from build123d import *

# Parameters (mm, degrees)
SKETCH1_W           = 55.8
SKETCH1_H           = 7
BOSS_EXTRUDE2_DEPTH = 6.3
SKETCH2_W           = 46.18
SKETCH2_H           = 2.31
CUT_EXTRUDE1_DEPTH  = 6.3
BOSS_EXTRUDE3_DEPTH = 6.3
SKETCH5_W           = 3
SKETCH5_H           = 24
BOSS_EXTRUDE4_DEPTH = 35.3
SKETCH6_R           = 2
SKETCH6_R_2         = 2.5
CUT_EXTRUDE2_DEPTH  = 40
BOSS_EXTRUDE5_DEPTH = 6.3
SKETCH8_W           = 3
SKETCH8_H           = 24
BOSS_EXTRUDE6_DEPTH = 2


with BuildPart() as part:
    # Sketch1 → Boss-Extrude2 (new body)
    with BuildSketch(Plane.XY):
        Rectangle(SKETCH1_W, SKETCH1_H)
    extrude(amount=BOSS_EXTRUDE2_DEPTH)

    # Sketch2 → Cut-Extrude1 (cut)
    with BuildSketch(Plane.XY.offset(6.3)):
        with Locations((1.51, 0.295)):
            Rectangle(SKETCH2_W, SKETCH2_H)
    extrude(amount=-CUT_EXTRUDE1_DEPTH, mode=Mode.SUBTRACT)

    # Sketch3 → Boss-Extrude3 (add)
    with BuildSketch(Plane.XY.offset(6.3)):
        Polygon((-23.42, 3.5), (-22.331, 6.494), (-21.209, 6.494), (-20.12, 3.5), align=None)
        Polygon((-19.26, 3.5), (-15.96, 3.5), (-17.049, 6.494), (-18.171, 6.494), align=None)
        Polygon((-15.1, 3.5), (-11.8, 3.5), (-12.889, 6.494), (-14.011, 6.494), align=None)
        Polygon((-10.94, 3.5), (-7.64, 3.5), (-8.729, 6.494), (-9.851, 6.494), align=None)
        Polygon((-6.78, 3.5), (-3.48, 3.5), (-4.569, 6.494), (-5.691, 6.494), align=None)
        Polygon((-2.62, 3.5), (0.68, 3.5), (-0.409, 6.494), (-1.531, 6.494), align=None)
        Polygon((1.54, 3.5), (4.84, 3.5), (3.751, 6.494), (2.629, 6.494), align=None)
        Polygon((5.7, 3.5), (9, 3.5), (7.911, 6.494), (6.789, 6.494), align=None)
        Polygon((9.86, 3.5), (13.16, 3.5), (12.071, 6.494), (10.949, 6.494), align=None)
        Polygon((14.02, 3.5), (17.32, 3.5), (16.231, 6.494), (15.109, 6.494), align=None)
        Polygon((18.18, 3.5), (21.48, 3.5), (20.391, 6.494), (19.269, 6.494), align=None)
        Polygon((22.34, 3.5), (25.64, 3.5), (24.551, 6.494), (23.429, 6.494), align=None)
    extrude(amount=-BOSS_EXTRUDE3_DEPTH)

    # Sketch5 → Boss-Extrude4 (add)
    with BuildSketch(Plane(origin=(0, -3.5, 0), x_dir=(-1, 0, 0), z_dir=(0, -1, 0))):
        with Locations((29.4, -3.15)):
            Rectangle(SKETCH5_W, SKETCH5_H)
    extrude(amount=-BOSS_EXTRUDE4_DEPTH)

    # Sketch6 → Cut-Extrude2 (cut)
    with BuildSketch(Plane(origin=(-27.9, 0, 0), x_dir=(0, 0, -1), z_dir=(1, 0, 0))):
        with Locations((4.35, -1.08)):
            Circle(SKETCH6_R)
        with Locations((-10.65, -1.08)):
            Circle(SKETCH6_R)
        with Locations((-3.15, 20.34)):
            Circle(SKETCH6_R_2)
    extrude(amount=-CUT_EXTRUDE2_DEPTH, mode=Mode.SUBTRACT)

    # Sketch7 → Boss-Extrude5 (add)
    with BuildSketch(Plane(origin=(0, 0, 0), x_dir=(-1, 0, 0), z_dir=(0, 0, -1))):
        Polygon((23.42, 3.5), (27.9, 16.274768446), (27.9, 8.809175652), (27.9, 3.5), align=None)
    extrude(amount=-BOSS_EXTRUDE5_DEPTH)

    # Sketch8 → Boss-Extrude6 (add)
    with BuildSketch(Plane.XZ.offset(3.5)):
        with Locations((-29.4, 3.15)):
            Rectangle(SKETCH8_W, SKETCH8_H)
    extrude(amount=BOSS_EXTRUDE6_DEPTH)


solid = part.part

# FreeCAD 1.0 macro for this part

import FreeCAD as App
import Part
import Sketcher

V = App.Vector

doc = App.newDocument("Part")
body = doc.addObject("PartDesign::Body", "Body")

sketch1 = body.newObject("Sketcher::SketchObject", "Sketch")
sketch1.AttachmentSupport = (doc.getObject("XY_Plane"), [""])
sketch1.MapMode = "FlatFace"
sketch1.addGeometry([
    Part.LineSegment(V(-27.9, 3.5, 0), V(-27.9, -3.5, 0)),
    Part.LineSegment(V(-27.9, -3.5, 0), V(27.9, -3.5, 0)),
    Part.LineSegment(V(27.9, -3.5, 0), V(27.9, 3.5, 0)),
    Part.LineSegment(V(27.9, 3.5, 0), V(-27.9, 3.5, 0)),
], False)
sketch1.addConstraint([
    Sketcher.Constraint("Coincident", 0, 2, 1, 1),
    Sketcher.Constraint("Coincident", 1, 2, 2, 1),
    Sketcher.Constraint("Coincident", 2, 2, 3, 1),
    Sketcher.Constraint("Coincident", 3, 2, 0, 1),
    Sketcher.Constraint("Vertical", 0),
    Sketcher.Constraint("Horizontal", 1),
    Sketcher.Constraint("Vertical", 2),
    Sketcher.Constraint("Horizontal", 3),
    Sketcher.Constraint("Symmetric", 0, 2, 2, 2, -1, 1),
    Sketcher.Constraint("DistanceY", 0, 2, 0, 1, 7.0),
    Sketcher.Constraint("DistanceX", 1, 1, 1, 2, 55.8),
])
pad1 = body.newObject("PartDesign::Pad", "Pad")
pad1.Profile = sketch1
pad1.Length = 6.3

sketch2 = body.newObject("Sketcher::SketchObject", "Sketch001")
sketch2.AttachmentSupport = (doc.getObject("XY_Plane"), [""])
sketch2.MapMode = "FlatFace"
sketch2.AttachmentOffset = App.Placement(V(0, 0, 6.3), App.Rotation())
sketch2.addGeometry([
    Part.LineSegment(V(-21.58, 1.45, 0), V(-21.58, -0.86, 0)),
    Part.LineSegment(V(-21.58, -0.86, 0), V(24.6, -0.86, 0)),
    Part.LineSegment(V(24.6, -0.86, 0), V(24.6, 1.45, 0)),
    Part.LineSegment(V(24.6, 1.45, 0), V(-21.58, 1.45, 0)),
], False)
sketch2.addConstraint([
    Sketcher.Constraint("Coincident", 0, 2, 1, 1),
    Sketcher.Constraint("Coincident", 1, 2, 2, 1),
    Sketcher.Constraint("Coincident", 2, 2, 3, 1),
    Sketcher.Constraint("Coincident", 3, 2, 0, 1),
    Sketcher.Constraint("Vertical", 0),
    Sketcher.Constraint("Horizontal", 1),
    Sketcher.Constraint("Vertical", 2),
    Sketcher.Constraint("Horizontal", 3),
    Sketcher.Constraint("DistanceX", 1, 1, 1, 2, 46.18),
    Sketcher.Constraint("DistanceY", 0, 2, 0, 1, 2.31),
    Sketcher.Constraint("DistanceX", -1, 1, 1, 2, 24.6),
    Sketcher.Constraint("DistanceY", 0, 2, -1, 1, 0.86),
])
pocket1 = body.newObject("PartDesign::Pocket", "Pocket")
pocket1.Profile = sketch2
pocket1.Length = 6.3

sketch3 = body.newObject("Sketcher::SketchObject", "Sketch002")
sketch3.AttachmentSupport = (doc.getObject("XY_Plane"), [""])
sketch3.MapMode = "FlatFace"
sketch3.AttachmentOffset = App.Placement(V(0, 0, 6.3), App.Rotation())
sketch3.addGeometry([
    Part.LineSegment(V(-22.331, 6.494, 0), V(-23.42, 3.5, 0)),
    Part.LineSegment(V(-23.42, 3.5, 0), V(-20.12, 3.5, 0)),
    Part.LineSegment(V(-20.12, 3.5, 0), V(-21.209, 6.494, 0)),
    Part.LineSegment(V(-21.209, 6.494, 0), V(-22.331, 6.494, 0)),
    Part.LineSegment(V(-19.26, 3.5, 0), V(-15.96, 3.5, 0)),
    Part.LineSegment(V(-15.96, 3.5, 0), V(-17.049, 6.494, 0)),
    Part.LineSegment(V(-17.049, 6.494, 0), V(-18.171, 6.494, 0)),
    Part.LineSegment(V(-18.171, 6.494, 0), V(-19.26, 3.5, 0)),
    Part.LineSegment(V(-15.1, 3.5, 0), V(-11.8, 3.5, 0)),
    Part.LineSegment(V(-11.8, 3.5, 0), V(-12.889, 6.494, 0)),
    Part.LineSegment(V(-12.889, 6.494, 0), V(-14.011, 6.494, 0)),
    Part.LineSegment(V(-14.011, 6.494, 0), V(-15.1, 3.5, 0)),
    Part.LineSegment(V(-10.94, 3.5, 0), V(-7.64, 3.5, 0)),
    Part.LineSegment(V(-7.64, 3.5, 0), V(-8.729, 6.494, 0)),
    Part.LineSegment(V(-8.729, 6.494, 0), V(-9.851, 6.494, 0)),
    Part.LineSegment(V(-9.851, 6.494, 0), V(-10.94, 3.5, 0)),
    Part.LineSegment(V(-6.78, 3.5, 0), V(-3.48, 3.5, 0)),
    Part.LineSegment(V(-3.48, 3.5, 0), V(-4.569, 6.494, 0)),
    Part.LineSegment(V(-4.569, 6.494, 0), V(-5.691, 6.494, 0)),
    Part.LineSegment(V(-5.691, 6.494, 0), V(-6.78, 3.5, 0)),
    Part.LineSegment(V(-2.62, 3.5, 0), V(0.68, 3.5, 0)),
    Part.LineSegment(V(0.68, 3.5, 0), V(-0.409, 6.494, 0)),
    Part.LineSegment(V(-0.409, 6.494, 0), V(-1.531, 6.494, 0)),
    Part.LineSegment(V(-1.531, 6.494, 0), V(-2.62, 3.5, 0)),
    Part.LineSegment(V(1.54, 3.5, 0), V(4.84, 3.5, 0)),
    Part.LineSegment(V(4.84, 3.5, 0), V(3.751, 6.494, 0)),
    Part.LineSegment(V(3.751, 6.494, 0), V(2.629, 6.494, 0)),
    Part.LineSegment(V(2.629, 6.494, 0), V(1.54, 3.5, 0)),
    Part.LineSegment(V(5.7, 3.5, 0), V(9, 3.5, 0)),
    Part.LineSegment(V(9, 3.5, 0), V(7.911, 6.494, 0)),
    Part.LineSegment(V(7.911, 6.494, 0), V(6.789, 6.494, 0)),
    Part.LineSegment(V(6.789, 6.494, 0), V(5.7, 3.5, 0)),
    Part.LineSegment(V(9.86, 3.5, 0), V(13.16, 3.5, 0)),
    Part.LineSegment(V(13.16, 3.5, 0), V(12.071, 6.494, 0)),
    Part.LineSegment(V(12.071, 6.494, 0), V(10.949, 6.494, 0)),
    Part.LineSegment(V(10.949, 6.494, 0), V(9.86, 3.5, 0)),
    Part.LineSegment(V(14.02, 3.5, 0), V(17.32, 3.5, 0)),
    Part.LineSegment(V(17.32, 3.5, 0), V(16.231, 6.494, 0)),
    Part.LineSegment(V(16.231, 6.494, 0), V(15.109, 6.494, 0)),
    Part.LineSegment(V(15.109, 6.494, 0), V(14.02, 3.5, 0)),
    Part.LineSegment(V(18.18, 3.5, 0), V(21.48, 3.5, 0)),
    Part.LineSegment(V(21.48, 3.5, 0), V(20.391, 6.494, 0)),
    Part.LineSegment(V(20.391, 6.494, 0), V(19.269, 6.494, 0)),
    Part.LineSegment(V(19.269, 6.494, 0), V(18.18, 3.5, 0)),
    Part.LineSegment(V(22.34, 3.5, 0), V(25.64, 3.5, 0)),
    Part.LineSegment(V(25.64, 3.5, 0), V(24.551, 6.494, 0)),
    Part.LineSegment(V(24.551, 6.494, 0), V(23.429, 6.494, 0)),
    Part.LineSegment(V(23.429, 6.494, 0), V(22.34, 3.5, 0)),
], False)
sketch3.addConstraint([
    Sketcher.Constraint("Coincident", 0, 2, 1, 1),
    Sketcher.Constraint("Coincident", 1, 2, 2, 1),
    Sketcher.Constraint("Coincident", 2, 2, 3, 1),
    Sketcher.Constraint("Coincident", 3, 2, 0, 1),
    Sketcher.Constraint("Coincident", 4, 2, 5, 1),
    Sketcher.Constraint("Coincident", 5, 2, 6, 1),
    Sketcher.Constraint("Coincident", 6, 2, 7, 1),
    Sketcher.Constraint("Coincident", 7, 2, 4, 1),
    Sketcher.Constraint("Coincident", 8, 2, 9, 1),
    Sketcher.Constraint("Coincident", 9, 2, 10, 1),
    Sketcher.Constraint("Coincident", 10, 2, 11, 1),
    Sketcher.Constraint("Coincident", 11, 2, 8, 1),
    Sketcher.Constraint("Coincident", 12, 2, 13, 1),
    Sketcher.Constraint("Coincident", 13, 2, 14, 1),
    Sketcher.Constraint("Coincident", 14, 2, 15, 1),
    Sketcher.Constraint("Coincident", 15, 2, 12, 1),
    Sketcher.Constraint("Coincident", 16, 2, 17, 1),
    Sketcher.Constraint("Coincident", 17, 2, 18, 1),
    Sketcher.Constraint("Coincident", 18, 2, 19, 1),
    Sketcher.Constraint("Coincident", 19, 2, 16, 1),
    Sketcher.Constraint("Coincident", 20, 2, 21, 1),
    Sketcher.Constraint("Coincident", 21, 2, 22, 1),
    Sketcher.Constraint("Coincident", 22, 2, 23, 1),
    Sketcher.Constraint("Coincident", 23, 2, 20, 1),
    Sketcher.Constraint("Coincident", 24, 2, 25, 1),
    Sketcher.Constraint("Coincident", 25, 2, 26, 1),
    Sketcher.Constraint("Coincident", 26, 2, 27, 1),
    Sketcher.Constraint("Coincident", 27, 2, 24, 1),
    Sketcher.Constraint("Coincident", 28, 2, 29, 1),
    Sketcher.Constraint("Coincident", 29, 2, 30, 1),
    Sketcher.Constraint("Coincident", 30, 2, 31, 1),
    Sketcher.Constraint("Coincident", 31, 2, 28, 1),
    Sketcher.Constraint("Coincident", 32, 2, 33, 1),
    Sketcher.Constraint("Coincident", 33, 2, 34, 1),
    Sketcher.Constraint("Coincident", 34, 2, 35, 1),
    Sketcher.Constraint("Coincident", 35, 2, 32, 1),
    Sketcher.Constraint("Coincident", 36, 2, 37, 1),
    Sketcher.Constraint("Coincident", 37, 2, 38, 1),
    Sketcher.Constraint("Coincident", 38, 2, 39, 1),
    Sketcher.Constraint("Coincident", 39, 2, 36, 1),
    Sketcher.Constraint("Coincident", 40, 2, 41, 1),
    Sketcher.Constraint("Coincident", 41, 2, 42, 1),
    Sketcher.Constraint("Coincident", 42, 2, 43, 1),
    Sketcher.Constraint("Coincident", 43, 2, 40, 1),
    Sketcher.Constraint("Coincident", 44, 2, 45, 1),
    Sketcher.Constraint("Coincident", 45, 2, 46, 1),
    Sketcher.Constraint("Coincident", 46, 2, 47, 1),
    Sketcher.Constraint("Coincident", 47, 2, 44, 1),
    Sketcher.Constraint("Horizontal", 1),
    Sketcher.Constraint("Horizontal", 3),
    Sketcher.Constraint("Horizontal", 4),
    Sketcher.Constraint("Horizontal", 6),
    Sketcher.Constraint("Horizontal", 8),
    Sketcher.Constraint("Horizontal", 10),
    Sketcher.Constraint("Horizontal", 12),
    Sketcher.Constraint("Horizontal", 14),
    Sketcher.Constraint("Horizontal", 16),
    Sketcher.Constraint("Horizontal", 18),
    Sketcher.Constraint("Horizontal", 20),
    Sketcher.Constraint("Horizontal", 22),
    Sketcher.Constraint("Horizontal", 24),
    Sketcher.Constraint("Horizontal", 26),
    Sketcher.Constraint("Horizontal", 28),
    Sketcher.Constraint("Horizontal", 30),
    Sketcher.Constraint("Horizontal", 32),
    Sketcher.Constraint("Horizontal", 34),
    Sketcher.Constraint("Horizontal", 36),
    Sketcher.Constraint("Horizontal", 38),
    Sketcher.Constraint("Horizontal", 40),
    Sketcher.Constraint("Horizontal", 42),
    Sketcher.Constraint("Horizontal", 44),
    Sketcher.Constraint("Horizontal", 46),
    Sketcher.Constraint("Parallel", 2, 5),
    Sketcher.Constraint("Parallel", 0, 7),
    Sketcher.Constraint("Parallel", 5, 9),
    Sketcher.Constraint("Parallel", 7, 11),
    Sketcher.Constraint("Parallel", 9, 13),
    Sketcher.Constraint("Parallel", 11, 15),
    Sketcher.Constraint("Parallel", 13, 17),
    Sketcher.Constraint("Parallel", 15, 19),
    Sketcher.Constraint("Parallel", 17, 21),
    Sketcher.Constraint("Parallel", 19, 23),
    Sketcher.Constraint("Parallel", 21, 25),
    Sketcher.Constraint("Parallel", 23, 27),
    Sketcher.Constraint("Parallel", 25, 29),
    Sketcher.Constraint("Parallel", 27, 31),
    Sketcher.Constraint("Parallel", 29, 33),
    Sketcher.Constraint("Parallel", 31, 35),
    Sketcher.Constraint("Parallel", 33, 37),
    Sketcher.Constraint("Parallel", 35, 39),
    Sketcher.Constraint("Parallel", 37, 41),
    Sketcher.Constraint("Parallel", 39, 43),
    Sketcher.Constraint("Parallel", 41, 45),
    Sketcher.Constraint("Parallel", 43, 47),
    Sketcher.Constraint("Horizontal", 1, 2, 4, 2),
    Sketcher.Constraint("Horizontal", 3, 2, 5, 2),
    Sketcher.Constraint("Horizontal", 7, 2, 8, 2),
    Sketcher.Constraint("Horizontal", 6, 2, 9, 2),
    Sketcher.Constraint("Horizontal", 11, 2, 12, 2),
    Sketcher.Constraint("Horizontal", 10, 2, 13, 2),
    Sketcher.Constraint("Horizontal", 15, 2, 16, 2),
    Sketcher.Constraint("Horizontal", 14, 2, 17, 2),
    Sketcher.Constraint("Horizontal", 19, 2, 20, 2),
    Sketcher.Constraint("Horizontal", 18, 2, 21, 2),
    Sketcher.Constraint("Horizontal", 23, 2, 24, 2),
    Sketcher.Constraint("Horizontal", 22, 2, 25, 2),
    Sketcher.Constraint("Horizontal", 27, 2, 28, 2),
    Sketcher.Constraint("Horizontal", 26, 2, 29, 2),
    Sketcher.Constraint("Horizontal", 31, 2, 32, 2),
    Sketcher.Constraint("Horizontal", 30, 2, 33, 2),
    Sketcher.Constraint("Horizontal", 35, 2, 36, 2),
    Sketcher.Constraint("Horizontal", 34, 2, 37, 2),
    Sketcher.Constraint("Horizontal", 39, 2, 40, 2),
    Sketcher.Constraint("Horizontal", 38, 2, 41, 2),
    Sketcher.Constraint("Horizontal", 43, 2, 44, 2),
    Sketcher.Constraint("Horizontal", 42, 2, 45, 2),
    Sketcher.Constraint("Equal", 1, 4),
    Sketcher.Constraint("Equal", 4, 8),
    Sketcher.Constraint("Equal", 8, 12),
    Sketcher.Constraint("Equal", 12, 16),
    Sketcher.Constraint("Equal", 16, 20),
    Sketcher.Constraint("Equal", 20, 24),
    Sketcher.Constraint("Equal", 24, 28),
    Sketcher.Constraint("Equal", 28, 32),
    Sketcher.Constraint("Equal", 32, 36),
    Sketcher.Constraint("Equal", 36, 40),
    Sketcher.Constraint("Equal", 40, 44),
    Sketcher.Constraint("Equal", 0, 2),
    Sketcher.Constraint("DistanceX", 1, 1, 1, 2, 3.3),
    Sketcher.Constraint("DistanceX", -1, 1, 28, 2, 9.0),
    Sketcher.Constraint("DistanceY", -1, 1, 0, 2, 3.5),
    Sketcher.Constraint("DistanceX", 8, 2, -1, 1, 11.8),
    Sketcher.Constraint("DistanceX", 3, 2, 3, 1, 1.122),
    Sketcher.Constraint("DistanceX", 0, 2, -1, 1, 23.42),
    Sketcher.Constraint("DistanceX", 4, 2, -1, 1, 15.96),
    Sketcher.Constraint("DistanceX", 12, 2, -1, 1, 7.64),
    Sketcher.Constraint("DistanceX", 16, 2, -1, 1, 3.48),
    Sketcher.Constraint("DistanceX", -1, 1, 20, 2, 0.68),
    Sketcher.Constraint("DistanceX", -1, 1, 24, 2, 4.84),
    Sketcher.Constraint("DistanceX", -1, 1, 32, 2, 13.16),
    Sketcher.Constraint("DistanceX", -1, 1, 36, 2, 17.32),
    Sketcher.Constraint("DistanceX", -1, 1, 40, 2, 21.48),
    Sketcher.Constraint("DistanceX", -1, 1, 44, 2, 25.64),
    Sketcher.Constraint("DistanceY", -1, 1, 2, 2, 6.494),
])
pad2 = body.newObject("PartDesign::Pad", "Pad001")
pad2.Profile = sketch3
pad2.Length = 6.3
pad2.Reversed = True

sketch4 = body.newObject("Sketcher::SketchObject", "Sketch003")
sketch4.AttachmentSupport = (doc.getObject("XZ_Plane"), [""])
sketch4.MapMode = "FlatFace"
sketch4.AttachmentOffset = App.Placement(V(0, 0, 3.5), App.Rotation())
sketch4.addGeometry([
    Part.LineSegment(V(-27.9, -8.85, 0), V(-27.9, 15.15, 0)),
    Part.LineSegment(V(-27.9, 15.15, 0), V(-30.9, 15.15, 0)),
    Part.LineSegment(V(-30.9, 15.15, 0), V(-30.9, -8.85, 0)),
    Part.LineSegment(V(-30.9, -8.85, 0), V(-27.9, -8.85, 0)),
], False)
sketch4.addConstraint([
    Sketcher.Constraint("Coincident", 0, 2, 1, 1),
    Sketcher.Constraint("Coincident", 1, 2, 2, 1),
    Sketcher.Constraint("Coincident", 2, 2, 3, 1),
    Sketcher.Constraint("Coincident", 3, 2, 0, 1),
    Sketcher.Constraint("Vertical", 0),
    Sketcher.Constraint("Horizontal", 1),
    Sketcher.Constraint("Vertical", 2),
    Sketcher.Constraint("Horizontal", 3),
    Sketcher.Constraint("DistanceX", 1, 2, 1, 1, 3.0),
    Sketcher.Constraint("DistanceY", 0, 1, 0, 2, 24.0),
    Sketcher.Constraint("DistanceX", 0, 2, -1, 1, 27.9),
    Sketcher.Constraint("DistanceY", -1, 1, 0, 2, 15.15),
])
pad3 = body.newObject("PartDesign::Pad", "Pad002")
pad3.Profile = sketch4
pad3.Length = 35.3
pad3.Reversed = True

sketch5 = body.newObject("Sketcher::SketchObject", "Sketch004")
sketch5.AttachmentSupport = (doc.getObject("YZ_Plane"), [""])
sketch5.MapMode = "FlatFace"
sketch5.AttachmentOffset = App.Placement(V(0, 0, -27.9), App.Rotation())
sketch5.addGeometry([
    Part.Circle(V(-1.08, -4.35, 0), V(0, 0, 1), 2),
    Part.Circle(V(-1.08, 10.65, 0), V(0, 0, 1), 2),
    Part.Circle(V(20.34, 3.15, 0), V(0, 0, 1), 2.5),
], False)
sketch5.addConstraint([
    Sketcher.Constraint("Equal", 0, 1),
    Sketcher.Constraint("Vertical", 0, 3, 1, 3),
    Sketcher.Constraint("Diameter", 0, 4.0),
    Sketcher.Constraint("Diameter", 2, 5.0),
    Sketcher.Constraint("DistanceY", 0, 3, 1, 3, 15.0),
    Sketcher.Constraint("DistanceY", 0, 3, 2, 3, 7.5),
    Sketcher.Constraint("DistanceX", 0, 3, -1, 1, 1.08),
    Sketcher.Constraint("DistanceY", 0, 3, -1, 1, 4.35),
    Sketcher.Constraint("DistanceX", -1, 1, 2, 3, 20.34),
])
pocket2 = body.newObject("PartDesign::Pocket", "Pocket001")
pocket2.Profile = sketch5
pocket2.Length = 40

sketch6 = body.newObject("Sketcher::SketchObject", "Sketch005")
sketch6.AttachmentSupport = (doc.getObject("XY_Plane"), [""])
sketch6.MapMode = "FlatFace"
sketch6.addGeometry([
    Part.LineSegment(V(-27.9, 16.274768, 0), V(-23.42, 3.5, 0)),
    Part.LineSegment(V(-23.42, 3.5, 0), V(-27.9, 3.5, 0)),
    Part.LineSegment(V(-27.9, 3.5, 0), V(-27.9, 16.274768, 0)),
], False)
sketch6.addConstraint([
    Sketcher.Constraint("Coincident", 0, 2, 1, 1),
    Sketcher.Constraint("Coincident", 1, 2, 2, 1),
    Sketcher.Constraint("Coincident", 2, 2, 0, 1),
    Sketcher.Constraint("Horizontal", 1),
    Sketcher.Constraint("Vertical", 2),
    Sketcher.Constraint("DistanceX", 1, 2, 1, 1, 4.48),
    Sketcher.Constraint("DistanceY", -1, 1, 0, 2, 3.5),
    Sketcher.Constraint("DistanceX", 1, 2, -1, 1, 27.9),
    Sketcher.Constraint("DistanceY", 2, 1, 2, 2, 12.774768),
])
pad4 = body.newObject("PartDesign::Pad", "Pad003")
pad4.Profile = sketch6
pad4.Length = 6.3

sketch7 = body.newObject("Sketcher::SketchObject", "Sketch006")
sketch7.AttachmentSupport = (doc.getObject("XZ_Plane"), [""])
sketch7.MapMode = "FlatFace"
sketch7.AttachmentOffset = App.Placement(V(0, 0, 3.5), App.Rotation())
sketch7.addGeometry([
    Part.LineSegment(V(-30.9, 15.15, 0), V(-30.9, -8.85, 0)),
    Part.LineSegment(V(-30.9, -8.85, 0), V(-27.9, -8.85, 0)),
    Part.LineSegment(V(-27.9, -8.85, 0), V(-27.9, 15.15, 0)),
    Part.LineSegment(V(-27.9, 15.15, 0), V(-30.9, 15.15, 0)),
], False)
sketch7.addConstraint([
    Sketcher.Constraint("Coincident", 0, 2, 1, 1),
    Sketcher.Constraint("Coincident", 1, 2, 2, 1),
    Sketcher.Constraint("Coincident", 2, 2, 3, 1),
    Sketcher.Constraint("Coincident", 3, 2, 0, 1),
    Sketcher.Constraint("Vertical", 0),
    Sketcher.Constraint("Horizontal", 1),
    Sketcher.Constraint("Vertical", 2),
    Sketcher.Constraint("Horizontal", 3),
    Sketcher.Constraint("DistanceX", 1, 1, 1, 2, 3.0),
    Sketcher.Constraint("DistanceY", 0, 2, 0, 1, 24.0),
    Sketcher.Constraint("DistanceX", 0, 2, -1, 1, 30.9),
    Sketcher.Constraint("DistanceY", 0, 2, -1, 1, 8.85),
])
pad5 = body.newObject("PartDesign::Pad", "Pad004")
pad5.Profile = sketch7
pad5.Length = 2

doc.recompute()
